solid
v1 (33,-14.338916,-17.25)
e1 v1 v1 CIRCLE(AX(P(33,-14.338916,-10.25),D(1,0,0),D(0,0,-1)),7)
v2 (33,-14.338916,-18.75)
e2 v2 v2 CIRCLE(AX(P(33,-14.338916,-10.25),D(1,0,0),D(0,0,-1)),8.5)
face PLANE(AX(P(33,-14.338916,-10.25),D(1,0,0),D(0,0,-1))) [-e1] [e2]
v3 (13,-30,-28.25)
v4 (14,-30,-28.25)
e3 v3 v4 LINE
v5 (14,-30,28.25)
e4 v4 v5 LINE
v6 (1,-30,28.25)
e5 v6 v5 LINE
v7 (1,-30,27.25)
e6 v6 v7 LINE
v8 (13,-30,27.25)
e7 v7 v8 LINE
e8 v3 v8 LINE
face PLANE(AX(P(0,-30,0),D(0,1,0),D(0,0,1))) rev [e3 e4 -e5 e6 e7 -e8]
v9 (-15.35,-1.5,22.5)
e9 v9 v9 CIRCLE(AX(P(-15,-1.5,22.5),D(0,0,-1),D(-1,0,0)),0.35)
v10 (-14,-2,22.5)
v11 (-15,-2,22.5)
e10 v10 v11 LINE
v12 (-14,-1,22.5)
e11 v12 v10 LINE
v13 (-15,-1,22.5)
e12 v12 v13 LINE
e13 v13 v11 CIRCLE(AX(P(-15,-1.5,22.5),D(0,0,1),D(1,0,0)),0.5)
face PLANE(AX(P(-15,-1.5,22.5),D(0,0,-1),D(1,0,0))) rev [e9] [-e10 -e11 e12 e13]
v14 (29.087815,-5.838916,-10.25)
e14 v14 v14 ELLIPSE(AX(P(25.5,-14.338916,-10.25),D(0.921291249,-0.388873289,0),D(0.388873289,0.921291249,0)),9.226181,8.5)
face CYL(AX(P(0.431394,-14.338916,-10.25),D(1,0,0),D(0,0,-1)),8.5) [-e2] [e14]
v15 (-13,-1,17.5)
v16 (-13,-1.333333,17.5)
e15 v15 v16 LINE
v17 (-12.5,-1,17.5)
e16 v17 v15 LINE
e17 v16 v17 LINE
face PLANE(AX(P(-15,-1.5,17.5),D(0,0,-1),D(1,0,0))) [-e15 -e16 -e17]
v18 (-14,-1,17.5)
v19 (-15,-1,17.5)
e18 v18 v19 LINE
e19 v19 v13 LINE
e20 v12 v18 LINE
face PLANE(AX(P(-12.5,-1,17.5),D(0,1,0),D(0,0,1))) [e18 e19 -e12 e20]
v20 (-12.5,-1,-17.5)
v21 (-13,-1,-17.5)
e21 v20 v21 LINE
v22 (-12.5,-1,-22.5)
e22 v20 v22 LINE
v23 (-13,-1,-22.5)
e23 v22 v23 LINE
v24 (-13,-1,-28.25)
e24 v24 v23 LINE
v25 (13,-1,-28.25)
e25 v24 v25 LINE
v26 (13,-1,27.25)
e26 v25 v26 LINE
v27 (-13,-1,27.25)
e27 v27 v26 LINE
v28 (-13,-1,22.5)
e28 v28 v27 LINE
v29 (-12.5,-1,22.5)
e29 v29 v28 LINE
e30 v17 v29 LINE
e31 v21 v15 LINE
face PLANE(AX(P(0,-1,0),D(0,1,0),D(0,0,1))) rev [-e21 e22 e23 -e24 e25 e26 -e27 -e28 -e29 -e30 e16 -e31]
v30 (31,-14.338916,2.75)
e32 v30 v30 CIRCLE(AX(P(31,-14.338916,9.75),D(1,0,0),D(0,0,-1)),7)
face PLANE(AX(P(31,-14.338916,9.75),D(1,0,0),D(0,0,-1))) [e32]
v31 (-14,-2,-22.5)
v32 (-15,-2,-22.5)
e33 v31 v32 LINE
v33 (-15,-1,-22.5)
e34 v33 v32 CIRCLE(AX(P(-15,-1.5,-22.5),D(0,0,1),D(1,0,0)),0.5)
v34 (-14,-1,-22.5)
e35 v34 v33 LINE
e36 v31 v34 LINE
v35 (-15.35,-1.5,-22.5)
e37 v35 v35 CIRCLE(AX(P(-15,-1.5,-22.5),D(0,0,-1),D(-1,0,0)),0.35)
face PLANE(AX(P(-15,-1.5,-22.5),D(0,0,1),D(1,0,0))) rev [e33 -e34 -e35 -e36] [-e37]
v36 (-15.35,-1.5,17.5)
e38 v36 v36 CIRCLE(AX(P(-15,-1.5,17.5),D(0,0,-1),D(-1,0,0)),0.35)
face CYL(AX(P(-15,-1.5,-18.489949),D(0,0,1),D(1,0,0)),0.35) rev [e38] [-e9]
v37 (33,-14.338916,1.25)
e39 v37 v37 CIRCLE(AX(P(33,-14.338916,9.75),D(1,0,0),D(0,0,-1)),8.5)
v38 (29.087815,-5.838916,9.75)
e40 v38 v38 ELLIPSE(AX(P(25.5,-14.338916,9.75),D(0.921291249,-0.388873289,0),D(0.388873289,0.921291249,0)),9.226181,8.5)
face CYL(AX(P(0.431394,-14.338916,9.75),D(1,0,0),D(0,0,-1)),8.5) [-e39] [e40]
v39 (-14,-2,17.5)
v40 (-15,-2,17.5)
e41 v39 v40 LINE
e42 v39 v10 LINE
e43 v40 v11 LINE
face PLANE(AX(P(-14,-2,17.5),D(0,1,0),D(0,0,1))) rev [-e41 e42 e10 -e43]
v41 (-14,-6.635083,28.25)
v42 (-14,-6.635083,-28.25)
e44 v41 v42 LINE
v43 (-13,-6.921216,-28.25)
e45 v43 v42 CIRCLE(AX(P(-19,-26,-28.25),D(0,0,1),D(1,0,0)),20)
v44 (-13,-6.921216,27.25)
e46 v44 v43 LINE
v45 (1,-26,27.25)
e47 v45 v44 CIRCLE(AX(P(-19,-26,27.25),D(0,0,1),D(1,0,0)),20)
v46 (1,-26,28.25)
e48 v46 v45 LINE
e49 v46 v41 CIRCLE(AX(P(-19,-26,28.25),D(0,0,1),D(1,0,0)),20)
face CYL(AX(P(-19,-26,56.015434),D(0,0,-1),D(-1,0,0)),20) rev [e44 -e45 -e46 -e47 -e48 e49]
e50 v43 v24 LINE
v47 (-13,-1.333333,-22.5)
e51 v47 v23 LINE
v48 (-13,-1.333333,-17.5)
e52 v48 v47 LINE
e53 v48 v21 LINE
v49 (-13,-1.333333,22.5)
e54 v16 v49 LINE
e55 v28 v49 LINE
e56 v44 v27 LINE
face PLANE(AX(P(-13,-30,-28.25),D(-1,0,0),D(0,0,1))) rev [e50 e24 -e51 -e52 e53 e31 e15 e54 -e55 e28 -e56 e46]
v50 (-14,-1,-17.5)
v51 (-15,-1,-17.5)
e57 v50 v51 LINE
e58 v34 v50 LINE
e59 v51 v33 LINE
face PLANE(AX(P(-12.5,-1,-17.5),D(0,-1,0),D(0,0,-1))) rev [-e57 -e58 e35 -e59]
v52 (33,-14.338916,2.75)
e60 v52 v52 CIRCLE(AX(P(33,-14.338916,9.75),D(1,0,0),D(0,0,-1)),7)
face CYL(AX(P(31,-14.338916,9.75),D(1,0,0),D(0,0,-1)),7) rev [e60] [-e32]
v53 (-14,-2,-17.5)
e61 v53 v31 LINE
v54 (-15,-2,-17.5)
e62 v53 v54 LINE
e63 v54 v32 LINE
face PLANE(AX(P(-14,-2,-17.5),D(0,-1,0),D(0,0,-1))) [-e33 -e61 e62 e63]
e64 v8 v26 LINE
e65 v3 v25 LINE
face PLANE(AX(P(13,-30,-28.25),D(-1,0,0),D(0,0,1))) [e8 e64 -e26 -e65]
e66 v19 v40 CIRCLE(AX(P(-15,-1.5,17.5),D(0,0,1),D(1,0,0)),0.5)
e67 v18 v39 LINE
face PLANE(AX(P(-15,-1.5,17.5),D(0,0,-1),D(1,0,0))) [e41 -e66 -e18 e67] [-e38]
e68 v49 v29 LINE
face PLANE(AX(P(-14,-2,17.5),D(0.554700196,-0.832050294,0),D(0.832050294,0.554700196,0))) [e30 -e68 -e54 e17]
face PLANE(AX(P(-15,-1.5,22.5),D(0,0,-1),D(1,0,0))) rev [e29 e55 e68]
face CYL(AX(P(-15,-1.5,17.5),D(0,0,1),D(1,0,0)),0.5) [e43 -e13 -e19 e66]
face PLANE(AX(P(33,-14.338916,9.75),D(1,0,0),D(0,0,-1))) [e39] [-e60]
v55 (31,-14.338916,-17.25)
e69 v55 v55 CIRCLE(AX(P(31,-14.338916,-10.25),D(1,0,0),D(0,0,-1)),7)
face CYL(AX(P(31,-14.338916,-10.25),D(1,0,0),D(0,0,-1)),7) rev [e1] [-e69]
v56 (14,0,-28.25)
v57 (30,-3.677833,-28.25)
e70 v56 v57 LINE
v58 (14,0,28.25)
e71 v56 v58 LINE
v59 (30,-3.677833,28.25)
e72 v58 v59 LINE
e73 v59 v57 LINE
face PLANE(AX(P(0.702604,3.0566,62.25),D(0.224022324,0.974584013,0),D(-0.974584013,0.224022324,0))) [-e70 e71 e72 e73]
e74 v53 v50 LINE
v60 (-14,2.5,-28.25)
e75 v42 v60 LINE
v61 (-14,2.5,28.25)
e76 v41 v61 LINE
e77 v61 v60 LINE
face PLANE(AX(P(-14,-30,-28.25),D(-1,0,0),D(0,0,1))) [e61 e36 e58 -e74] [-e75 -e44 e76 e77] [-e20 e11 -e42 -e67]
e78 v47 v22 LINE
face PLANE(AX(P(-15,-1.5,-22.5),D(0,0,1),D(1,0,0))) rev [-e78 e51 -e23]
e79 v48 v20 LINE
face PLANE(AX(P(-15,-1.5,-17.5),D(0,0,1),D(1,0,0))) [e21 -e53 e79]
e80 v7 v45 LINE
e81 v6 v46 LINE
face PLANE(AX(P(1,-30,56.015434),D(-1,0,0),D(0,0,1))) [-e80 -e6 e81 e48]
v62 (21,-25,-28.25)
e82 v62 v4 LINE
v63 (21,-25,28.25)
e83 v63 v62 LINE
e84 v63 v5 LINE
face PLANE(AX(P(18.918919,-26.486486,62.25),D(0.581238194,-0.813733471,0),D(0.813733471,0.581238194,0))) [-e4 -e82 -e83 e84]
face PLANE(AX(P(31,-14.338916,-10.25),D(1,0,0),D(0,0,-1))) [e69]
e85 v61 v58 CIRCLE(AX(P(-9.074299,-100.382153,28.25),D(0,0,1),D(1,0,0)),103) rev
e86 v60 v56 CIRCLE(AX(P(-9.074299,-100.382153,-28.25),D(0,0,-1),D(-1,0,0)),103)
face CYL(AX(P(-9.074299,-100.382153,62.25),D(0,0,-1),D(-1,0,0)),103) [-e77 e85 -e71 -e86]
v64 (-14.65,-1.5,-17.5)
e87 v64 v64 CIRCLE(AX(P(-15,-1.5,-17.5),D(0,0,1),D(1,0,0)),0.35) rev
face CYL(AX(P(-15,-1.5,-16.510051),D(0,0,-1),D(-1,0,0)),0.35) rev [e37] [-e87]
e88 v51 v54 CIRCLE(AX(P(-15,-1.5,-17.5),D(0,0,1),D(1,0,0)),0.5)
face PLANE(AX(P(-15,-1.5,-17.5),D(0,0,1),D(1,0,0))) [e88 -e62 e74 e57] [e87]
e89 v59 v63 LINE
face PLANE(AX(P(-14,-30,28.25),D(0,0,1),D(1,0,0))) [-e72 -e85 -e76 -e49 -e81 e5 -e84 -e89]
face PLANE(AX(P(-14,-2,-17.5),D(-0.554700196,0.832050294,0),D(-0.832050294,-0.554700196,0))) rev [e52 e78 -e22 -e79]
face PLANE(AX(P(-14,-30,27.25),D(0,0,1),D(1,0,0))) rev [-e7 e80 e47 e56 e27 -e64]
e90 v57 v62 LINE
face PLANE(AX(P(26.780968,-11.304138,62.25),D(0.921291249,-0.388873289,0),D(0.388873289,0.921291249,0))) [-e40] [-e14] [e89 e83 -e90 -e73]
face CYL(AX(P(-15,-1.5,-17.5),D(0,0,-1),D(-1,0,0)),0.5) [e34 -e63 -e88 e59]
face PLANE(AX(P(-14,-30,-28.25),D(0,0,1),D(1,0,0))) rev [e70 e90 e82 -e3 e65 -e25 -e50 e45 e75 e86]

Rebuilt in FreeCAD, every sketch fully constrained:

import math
import FreeCAD as App
import Part
import Sketcher

V = App.Vector


def faces_at(feature, points):
    """Names of the faces that lie closest to the given points."""
    faces = feature.Shape.Faces
    near = lambda p: min(range(len(faces)), key=lambda i: faces[i].distToShape(Part.Vertex(*p))[0])
    return sorted({f"Face{near(p) + 1}" for p in points})

doc = App.newDocument("Part")
body = doc.addObject("PartDesign::Body", "Body")

# Sketch on XZ plane
sketch1 = body.newObject("Sketcher::SketchObject", "Sketch")
sketch1.AttachmentSupport = (doc.getObject("XZ_Plane"), [""])
sketch1.MapMode = "FlatFace"
sketch1.addGeometry(Part.LineSegment(V(-14, -28.25, 0), V(-14, 28.25, 0)), False)
sketch1.addGeometry(Part.LineSegment(V(-14, 28.25, 0), V(14, 28.25, 0)), False)
sketch1.addGeometry(Part.LineSegment(V(14, 28.25, 0), V(14, -28.25, 0)), False)
sketch1.addGeometry(Part.LineSegment(V(14, -28.25, 0), V(-14, -28.25, 0)), False)
sketch1.addConstraint(Sketcher.Constraint("Coincident", 0, 2, 1, 1))
sketch1.addConstraint(Sketcher.Constraint("Coincident", 1, 2, 2, 1))
sketch1.addConstraint(Sketcher.Constraint("Coincident", 2, 2, 3, 1))
sketch1.addConstraint(Sketcher.Constraint("Coincident", 3, 2, 0, 1))
sketch1.addConstraint(Sketcher.Constraint("Vertical", 0))
sketch1.addConstraint(Sketcher.Constraint("Horizontal", 1))
sketch1.addConstraint(Sketcher.Constraint("Vertical", 2))
sketch1.addConstraint(Sketcher.Constraint("Horizontal", 3))
sketch1.addConstraint(Sketcher.Constraint("Symmetric", 0, 2, 2, 2, -1, 1))
sketch1.addConstraint(Sketcher.Constraint("DistanceX", 1, 1, 1, 2, 28.0))
sketch1.addConstraint(Sketcher.Constraint("DistanceY", 0, 1, 0, 2, 56.5))
pad1 = body.newObject("PartDesign::Pad", "Pad")
pad1.Profile = sketch1
pad1.Length = 30

# Sketch on XY plane
sketch2 = body.newObject("Sketcher::SketchObject", "Sketch001")
sketch2.AttachmentSupport = (doc.getObject("XY_Plane"), [""])
sketch2.MapMode = "FlatFace"
sketch2.AttachmentOffset = App.Placement(V(0, 0, -28.25), App.Rotation())
sketch2.addGeometry(Part.LineSegment(V(1, -26, 0), V(1, -30, 0)), False)
sketch2.addGeometry(Part.LineSegment(V(1, -30, 0), V(-14, -30, 0)), False)
sketch2.addGeometry(Part.LineSegment(V(-14, -30, 0), V(-14, -6.635083, 0)), False)
sketch2.addGeometry(Part.ArcOfCircle(Part.Circle(V(-19, -26, 0), V(0, 0, 1), 20), math.radians(0), math.radians(75.522488)), False)
sketch2.addConstraint(Sketcher.Constraint("Coincident", 0, 2, 1, 1))
sketch2.addConstraint(Sketcher.Constraint("Coincident", 1, 2, 2, 1))
sketch2.addConstraint(Sketcher.Constraint("Coincident", 2, 2, 3, 2))
sketch2.addConstraint(Sketcher.Constraint("Tangent", 3, 1, 0, 1))
sketch2.addConstraint(Sketcher.Constraint("Vertical", 0))
sketch2.addConstraint(Sketcher.Constraint("Horizontal", 1))
sketch2.addConstraint(Sketcher.Constraint("Vertical", 2))
sketch2.addConstraint(Sketcher.Constraint("Radius", 3, 20.0))
sketch2.addConstraint(Sketcher.Constraint("DistanceX", 1, 2, 1, 1, 15.0))
sketch2.addConstraint(Sketcher.Constraint("DistanceY", 0, 2, 0, 1, 4.0))
sketch2.addConstraint(Sketcher.Constraint("DistanceX", 3, 3, -1, 1, 19.0))
sketch2.addConstraint(Sketcher.Constraint("DistanceY", 3, 3, -1, 1, 26.0))
pocket1 = body.newObject("PartDesign::Pocket", "Pocket")
pocket1.Profile = sketch2
pocket1.Length = 56.5
pocket1.Reversed = True
doc.recompute()

thickness = body.newObject("PartDesign::Thickness", "Thickness")
thickness.Base = (pocket1, faces_at(pocket1, [
    (7.5, -30, 0),
    (0, -15, -28.25),
    (-3.189, -13.753, 0),
    (1, -28, 0),
]))
thickness.Value = 1
thickness.Reversed = True
thickness.Join = "Intersection"

# Sketch on XY plane
sketch3 = body.newObject("Sketcher::SketchObject", "Sketch002")
sketch3.AttachmentSupport = (doc.getObject("XY_Plane"), [""])
sketch3.MapMode = "FlatFace"
sketch3.AttachmentOffset = App.Placement(V(0, 0, -20), App.Rotation())
sketch3.addGeometry(Part.ArcOfCircle(Part.Circle(V(-15, -1.5, 0), V(0, 0, 1), 0.5), math.radians(90), math.radians(270)), False)
sketch3.addGeometry(Part.LineSegment(V(-15, -2, 0), V(-14, -2, 0)), False)
sketch3.addGeometry(Part.LineSegment(V(-14, -2, 0), V(-12.5, -1, 0)), False)
sketch3.addGeometry(Part.LineSegment(V(-12.5, -1, 0), V(-15, -1, 0)), False)
sketch3.addConstraint(Sketcher.Constraint("Tangent", 0, 2, 1, 1))
sketch3.addConstraint(Sketcher.Constraint("Coincident", 1, 2, 2, 1))
sketch3.addConstraint(Sketcher.Constraint("Coincident", 2, 2, 3, 1))
sketch3.addConstraint(Sketcher.Constraint("Tangent", 3, 2, 0, 1))
sketch3.addConstraint(Sketcher.Constraint("Horizontal", 1))
sketch3.addConstraint(Sketcher.Constraint("Horizontal", 3))
sketch3.addConstraint(Sketcher.Constraint("Radius", 0, 0.5))
sketch3.addConstraint(Sketcher.Constraint("DistanceX", 1, 1, 1, 2, 1.0))
sketch3.addConstraint(Sketcher.Constraint("DistanceX", 3, 2, 3, 1, 2.5))
sketch3.addConstraint(Sketcher.Constraint("DistanceX", 0, 3, -1, 1, 15.0))
sketch3.addConstraint(Sketcher.Constraint("DistanceY", 0, 2, -1, 1, 2.0))
pad2 = body.newObject("PartDesign::Pad", "Pad001")
pad2.Profile = sketch3
pad2.Length = 5
pad2.Midplane = True

# Sketch on XY plane
sketch4 = body.newObject("Sketcher::SketchObject", "Sketch003")
sketch4.AttachmentSupport = (doc.getObject("XY_Plane"), [""])
sketch4.MapMode = "FlatFace"
sketch4.AttachmentOffset = App.Placement(V(0, 0, -22.5), App.Rotation())
sketch4.addGeometry(Part.Circle(V(-15, -1.5, 0), V(0, 0, 1), 0.35), False)
sketch4.addConstraint(Sketcher.Constraint("Diameter", 0, 0.7))
sketch4.addConstraint(Sketcher.Constraint("DistanceX", 0, 3, -1, 1, 15.0))
sketch4.addConstraint(Sketcher.Constraint("DistanceY", 0, 3, -1, 1, 1.5))
pocket2 = body.newObject("PartDesign::Pocket", "Pocket001")
pocket2.Profile = sketch4
pocket2.Length = 5
pocket2.Reversed = True
doc.recompute()

mirrored = body.newObject("PartDesign::Mirrored", "Mirrored")
mirrored.Originals = [pad2, pocket2]
mirrored.MirrorPlane = (doc.getObject("XY_Plane"), [""])
body.Tip = mirrored

# Sketch on XY plane
sketch5 = body.newObject("Sketcher::SketchObject", "Sketch004")
sketch5.AttachmentSupport = (doc.getObject("XY_Plane"), [""])
sketch5.MapMode = "FlatFace"
sketch5.AttachmentOffset = App.Placement(V(0, 0, -28.25), App.Rotation())
sketch5.addGeometry(Part.LineSegment(V(30, -3.677833, 0), V(21, -25, 0)), False)
sketch5.addGeometry(Part.LineSegment(V(21, -25, 0), V(14, -30, 0)), False)
sketch5.addGeometry(Part.LineSegment(V(14, -30, 0), V(14, 0, 0)), False)
sketch5.addGeometry(Part.LineSegment(V(14, 0, 0), V(30, -3.677833, 0)), False)
sketch5.addGeometry(Part.LineSegment(V(-14, 0, 0), V(-14, 2.5, 0)), False)
sketch5.addGeometry(Part.ArcOfCircle(Part.Circle(V(-9.074299, -100.382153, 0), V(0, 0, 1), 103), math.radians(77.054606), math.radians(92.741063)), False)
sketch5.addGeometry(Part.LineSegment(V(14, 0, 0), V(-14, 0, 0)), False)
sketch5.addConstraint(Sketcher.Constraint("Coincident", 0, 2, 1, 1))
sketch5.addConstraint(Sketcher.Constraint("Coincident", 1, 2, 2, 1))
sketch5.addConstraint(Sketcher.Constraint("Coincident", 2, 2, 3, 1))
sketch5.addConstraint(Sketcher.Constraint("Coincident", 3, 2, 0, 1))
sketch5.addConstraint(Sketcher.Constraint("Coincident", 4, 2, 5, 2))
sketch5.addConstraint(Sketcher.Constraint("Coincident", 5, 1, 6, 1))
sketch5.addConstraint(Sketcher.Constraint("Coincident", 6, 2, 4, 1))
sketch5.addConstraint(Sketcher.Constraint("Vertical", 2))
sketch5.addConstraint(Sketcher.Constraint("Vertical", 4))
sketch5.addConstraint(Sketcher.Constraint("Horizontal", 6))
sketch5.addConstraint(Sketcher.Constraint("Coincident", 5, 1, 2, 2))
sketch5.addConstraint(Sketcher.Constraint("Symmetric", 2, 2, 6, 2, -1, 1))
sketch5.addConstraint(Sketcher.Constraint("Radius", 5, 103.0))
sketch5.addConstraint(Sketcher.Constraint("DistanceX", 6, 2, 6, 1, 28.0))
sketch5.addConstraint(Sketcher.Constraint("DistanceY", 2, 1, 2, 2, 30.0))
sketch5.addConstraint(Sketcher.Constraint("DistanceY", 4, 1, 4, 2, 2.5))
sketch5.addConstraint(Sketcher.Constraint("DistanceX", -1, 1, 0, 2, 21.0))
sketch5.addConstraint(Sketcher.Constraint("DistanceY", 0, 2, -1, 1, 25.0))
sketch5.addConstraint(Sketcher.Constraint("DistanceX", -1, 1, 3, 2, 30.0))
sketch5.addConstraint(Sketcher.Constraint("Distance", 3, 16.417261))
pad3 = body.newObject("PartDesign::Pad", "Pad002")
pad3.Profile = sketch5
pad3.Length = 56.5

# Sketch on YZ plane
sketch6 = body.newObject("Sketcher::SketchObject", "Sketch005")
sketch6.AttachmentSupport = (doc.getObject("YZ_Plane"), [""])
sketch6.MapMode = "FlatFace"
sketch6.AttachmentOffset = App.Placement(V(0, 0, 21.912184), App.Rotation())
sketch6.addGeometry(Part.Circle(V(-14.338916, -10.25, 0), V(0, 0, 1), 8.5), False)
sketch6.addConstraint(Sketcher.Constraint("Diameter", 0, 17.0))
sketch6.addConstraint(Sketcher.Constraint("DistanceY", 0, 3, -1, 1, 10.25))
sketch6.addConstraint(Sketcher.Constraint("DistanceX", 0, 3, -1, 1, 14.338916))
pad4 = body.newObject("PartDesign::Pad", "Pad003")
pad4.Profile = sketch6
pad4.Length = 11.087816

# Sketch on YZ plane
sketch7 = body.newObject("Sketcher::SketchObject", "Sketch006")
sketch7.AttachmentSupport = (doc.getObject("YZ_Plane"), [""])
sketch7.MapMode = "FlatFace"
sketch7.AttachmentOffset = App.Placement(V(0, 0, 33), App.Rotation())
sketch7.addGeometry(Part.Circle(V(-14.338916, -10.25, 0), V(0, 0, 1), 7), False)
sketch7.addConstraint(Sketcher.Constraint("Diameter", 0, 14.0))
sketch7.addConstraint(Sketcher.Constraint("DistanceY", 0, 3, -1, 1, 10.25))
sketch7.addConstraint(Sketcher.Constraint("DistanceX", 0, 3, -1, 1, 14.338916))
pocket3 = body.newObject("PartDesign::Pocket", "Pocket002")
pocket3.Profile = sketch7
pocket3.Length = 2
doc.recompute()

linearpattern = body.newObject("PartDesign::LinearPattern", "LinearPattern")
linearpattern.Originals = [pad4, pocket3]
linearpattern.Direction = (doc.getObject("Z_Axis"), [""])
linearpattern.Mode = "offset"
linearpattern.Offset = 20
linearpattern.Occurrences = 2
body.Tip = linearpattern

doc.recompute()
